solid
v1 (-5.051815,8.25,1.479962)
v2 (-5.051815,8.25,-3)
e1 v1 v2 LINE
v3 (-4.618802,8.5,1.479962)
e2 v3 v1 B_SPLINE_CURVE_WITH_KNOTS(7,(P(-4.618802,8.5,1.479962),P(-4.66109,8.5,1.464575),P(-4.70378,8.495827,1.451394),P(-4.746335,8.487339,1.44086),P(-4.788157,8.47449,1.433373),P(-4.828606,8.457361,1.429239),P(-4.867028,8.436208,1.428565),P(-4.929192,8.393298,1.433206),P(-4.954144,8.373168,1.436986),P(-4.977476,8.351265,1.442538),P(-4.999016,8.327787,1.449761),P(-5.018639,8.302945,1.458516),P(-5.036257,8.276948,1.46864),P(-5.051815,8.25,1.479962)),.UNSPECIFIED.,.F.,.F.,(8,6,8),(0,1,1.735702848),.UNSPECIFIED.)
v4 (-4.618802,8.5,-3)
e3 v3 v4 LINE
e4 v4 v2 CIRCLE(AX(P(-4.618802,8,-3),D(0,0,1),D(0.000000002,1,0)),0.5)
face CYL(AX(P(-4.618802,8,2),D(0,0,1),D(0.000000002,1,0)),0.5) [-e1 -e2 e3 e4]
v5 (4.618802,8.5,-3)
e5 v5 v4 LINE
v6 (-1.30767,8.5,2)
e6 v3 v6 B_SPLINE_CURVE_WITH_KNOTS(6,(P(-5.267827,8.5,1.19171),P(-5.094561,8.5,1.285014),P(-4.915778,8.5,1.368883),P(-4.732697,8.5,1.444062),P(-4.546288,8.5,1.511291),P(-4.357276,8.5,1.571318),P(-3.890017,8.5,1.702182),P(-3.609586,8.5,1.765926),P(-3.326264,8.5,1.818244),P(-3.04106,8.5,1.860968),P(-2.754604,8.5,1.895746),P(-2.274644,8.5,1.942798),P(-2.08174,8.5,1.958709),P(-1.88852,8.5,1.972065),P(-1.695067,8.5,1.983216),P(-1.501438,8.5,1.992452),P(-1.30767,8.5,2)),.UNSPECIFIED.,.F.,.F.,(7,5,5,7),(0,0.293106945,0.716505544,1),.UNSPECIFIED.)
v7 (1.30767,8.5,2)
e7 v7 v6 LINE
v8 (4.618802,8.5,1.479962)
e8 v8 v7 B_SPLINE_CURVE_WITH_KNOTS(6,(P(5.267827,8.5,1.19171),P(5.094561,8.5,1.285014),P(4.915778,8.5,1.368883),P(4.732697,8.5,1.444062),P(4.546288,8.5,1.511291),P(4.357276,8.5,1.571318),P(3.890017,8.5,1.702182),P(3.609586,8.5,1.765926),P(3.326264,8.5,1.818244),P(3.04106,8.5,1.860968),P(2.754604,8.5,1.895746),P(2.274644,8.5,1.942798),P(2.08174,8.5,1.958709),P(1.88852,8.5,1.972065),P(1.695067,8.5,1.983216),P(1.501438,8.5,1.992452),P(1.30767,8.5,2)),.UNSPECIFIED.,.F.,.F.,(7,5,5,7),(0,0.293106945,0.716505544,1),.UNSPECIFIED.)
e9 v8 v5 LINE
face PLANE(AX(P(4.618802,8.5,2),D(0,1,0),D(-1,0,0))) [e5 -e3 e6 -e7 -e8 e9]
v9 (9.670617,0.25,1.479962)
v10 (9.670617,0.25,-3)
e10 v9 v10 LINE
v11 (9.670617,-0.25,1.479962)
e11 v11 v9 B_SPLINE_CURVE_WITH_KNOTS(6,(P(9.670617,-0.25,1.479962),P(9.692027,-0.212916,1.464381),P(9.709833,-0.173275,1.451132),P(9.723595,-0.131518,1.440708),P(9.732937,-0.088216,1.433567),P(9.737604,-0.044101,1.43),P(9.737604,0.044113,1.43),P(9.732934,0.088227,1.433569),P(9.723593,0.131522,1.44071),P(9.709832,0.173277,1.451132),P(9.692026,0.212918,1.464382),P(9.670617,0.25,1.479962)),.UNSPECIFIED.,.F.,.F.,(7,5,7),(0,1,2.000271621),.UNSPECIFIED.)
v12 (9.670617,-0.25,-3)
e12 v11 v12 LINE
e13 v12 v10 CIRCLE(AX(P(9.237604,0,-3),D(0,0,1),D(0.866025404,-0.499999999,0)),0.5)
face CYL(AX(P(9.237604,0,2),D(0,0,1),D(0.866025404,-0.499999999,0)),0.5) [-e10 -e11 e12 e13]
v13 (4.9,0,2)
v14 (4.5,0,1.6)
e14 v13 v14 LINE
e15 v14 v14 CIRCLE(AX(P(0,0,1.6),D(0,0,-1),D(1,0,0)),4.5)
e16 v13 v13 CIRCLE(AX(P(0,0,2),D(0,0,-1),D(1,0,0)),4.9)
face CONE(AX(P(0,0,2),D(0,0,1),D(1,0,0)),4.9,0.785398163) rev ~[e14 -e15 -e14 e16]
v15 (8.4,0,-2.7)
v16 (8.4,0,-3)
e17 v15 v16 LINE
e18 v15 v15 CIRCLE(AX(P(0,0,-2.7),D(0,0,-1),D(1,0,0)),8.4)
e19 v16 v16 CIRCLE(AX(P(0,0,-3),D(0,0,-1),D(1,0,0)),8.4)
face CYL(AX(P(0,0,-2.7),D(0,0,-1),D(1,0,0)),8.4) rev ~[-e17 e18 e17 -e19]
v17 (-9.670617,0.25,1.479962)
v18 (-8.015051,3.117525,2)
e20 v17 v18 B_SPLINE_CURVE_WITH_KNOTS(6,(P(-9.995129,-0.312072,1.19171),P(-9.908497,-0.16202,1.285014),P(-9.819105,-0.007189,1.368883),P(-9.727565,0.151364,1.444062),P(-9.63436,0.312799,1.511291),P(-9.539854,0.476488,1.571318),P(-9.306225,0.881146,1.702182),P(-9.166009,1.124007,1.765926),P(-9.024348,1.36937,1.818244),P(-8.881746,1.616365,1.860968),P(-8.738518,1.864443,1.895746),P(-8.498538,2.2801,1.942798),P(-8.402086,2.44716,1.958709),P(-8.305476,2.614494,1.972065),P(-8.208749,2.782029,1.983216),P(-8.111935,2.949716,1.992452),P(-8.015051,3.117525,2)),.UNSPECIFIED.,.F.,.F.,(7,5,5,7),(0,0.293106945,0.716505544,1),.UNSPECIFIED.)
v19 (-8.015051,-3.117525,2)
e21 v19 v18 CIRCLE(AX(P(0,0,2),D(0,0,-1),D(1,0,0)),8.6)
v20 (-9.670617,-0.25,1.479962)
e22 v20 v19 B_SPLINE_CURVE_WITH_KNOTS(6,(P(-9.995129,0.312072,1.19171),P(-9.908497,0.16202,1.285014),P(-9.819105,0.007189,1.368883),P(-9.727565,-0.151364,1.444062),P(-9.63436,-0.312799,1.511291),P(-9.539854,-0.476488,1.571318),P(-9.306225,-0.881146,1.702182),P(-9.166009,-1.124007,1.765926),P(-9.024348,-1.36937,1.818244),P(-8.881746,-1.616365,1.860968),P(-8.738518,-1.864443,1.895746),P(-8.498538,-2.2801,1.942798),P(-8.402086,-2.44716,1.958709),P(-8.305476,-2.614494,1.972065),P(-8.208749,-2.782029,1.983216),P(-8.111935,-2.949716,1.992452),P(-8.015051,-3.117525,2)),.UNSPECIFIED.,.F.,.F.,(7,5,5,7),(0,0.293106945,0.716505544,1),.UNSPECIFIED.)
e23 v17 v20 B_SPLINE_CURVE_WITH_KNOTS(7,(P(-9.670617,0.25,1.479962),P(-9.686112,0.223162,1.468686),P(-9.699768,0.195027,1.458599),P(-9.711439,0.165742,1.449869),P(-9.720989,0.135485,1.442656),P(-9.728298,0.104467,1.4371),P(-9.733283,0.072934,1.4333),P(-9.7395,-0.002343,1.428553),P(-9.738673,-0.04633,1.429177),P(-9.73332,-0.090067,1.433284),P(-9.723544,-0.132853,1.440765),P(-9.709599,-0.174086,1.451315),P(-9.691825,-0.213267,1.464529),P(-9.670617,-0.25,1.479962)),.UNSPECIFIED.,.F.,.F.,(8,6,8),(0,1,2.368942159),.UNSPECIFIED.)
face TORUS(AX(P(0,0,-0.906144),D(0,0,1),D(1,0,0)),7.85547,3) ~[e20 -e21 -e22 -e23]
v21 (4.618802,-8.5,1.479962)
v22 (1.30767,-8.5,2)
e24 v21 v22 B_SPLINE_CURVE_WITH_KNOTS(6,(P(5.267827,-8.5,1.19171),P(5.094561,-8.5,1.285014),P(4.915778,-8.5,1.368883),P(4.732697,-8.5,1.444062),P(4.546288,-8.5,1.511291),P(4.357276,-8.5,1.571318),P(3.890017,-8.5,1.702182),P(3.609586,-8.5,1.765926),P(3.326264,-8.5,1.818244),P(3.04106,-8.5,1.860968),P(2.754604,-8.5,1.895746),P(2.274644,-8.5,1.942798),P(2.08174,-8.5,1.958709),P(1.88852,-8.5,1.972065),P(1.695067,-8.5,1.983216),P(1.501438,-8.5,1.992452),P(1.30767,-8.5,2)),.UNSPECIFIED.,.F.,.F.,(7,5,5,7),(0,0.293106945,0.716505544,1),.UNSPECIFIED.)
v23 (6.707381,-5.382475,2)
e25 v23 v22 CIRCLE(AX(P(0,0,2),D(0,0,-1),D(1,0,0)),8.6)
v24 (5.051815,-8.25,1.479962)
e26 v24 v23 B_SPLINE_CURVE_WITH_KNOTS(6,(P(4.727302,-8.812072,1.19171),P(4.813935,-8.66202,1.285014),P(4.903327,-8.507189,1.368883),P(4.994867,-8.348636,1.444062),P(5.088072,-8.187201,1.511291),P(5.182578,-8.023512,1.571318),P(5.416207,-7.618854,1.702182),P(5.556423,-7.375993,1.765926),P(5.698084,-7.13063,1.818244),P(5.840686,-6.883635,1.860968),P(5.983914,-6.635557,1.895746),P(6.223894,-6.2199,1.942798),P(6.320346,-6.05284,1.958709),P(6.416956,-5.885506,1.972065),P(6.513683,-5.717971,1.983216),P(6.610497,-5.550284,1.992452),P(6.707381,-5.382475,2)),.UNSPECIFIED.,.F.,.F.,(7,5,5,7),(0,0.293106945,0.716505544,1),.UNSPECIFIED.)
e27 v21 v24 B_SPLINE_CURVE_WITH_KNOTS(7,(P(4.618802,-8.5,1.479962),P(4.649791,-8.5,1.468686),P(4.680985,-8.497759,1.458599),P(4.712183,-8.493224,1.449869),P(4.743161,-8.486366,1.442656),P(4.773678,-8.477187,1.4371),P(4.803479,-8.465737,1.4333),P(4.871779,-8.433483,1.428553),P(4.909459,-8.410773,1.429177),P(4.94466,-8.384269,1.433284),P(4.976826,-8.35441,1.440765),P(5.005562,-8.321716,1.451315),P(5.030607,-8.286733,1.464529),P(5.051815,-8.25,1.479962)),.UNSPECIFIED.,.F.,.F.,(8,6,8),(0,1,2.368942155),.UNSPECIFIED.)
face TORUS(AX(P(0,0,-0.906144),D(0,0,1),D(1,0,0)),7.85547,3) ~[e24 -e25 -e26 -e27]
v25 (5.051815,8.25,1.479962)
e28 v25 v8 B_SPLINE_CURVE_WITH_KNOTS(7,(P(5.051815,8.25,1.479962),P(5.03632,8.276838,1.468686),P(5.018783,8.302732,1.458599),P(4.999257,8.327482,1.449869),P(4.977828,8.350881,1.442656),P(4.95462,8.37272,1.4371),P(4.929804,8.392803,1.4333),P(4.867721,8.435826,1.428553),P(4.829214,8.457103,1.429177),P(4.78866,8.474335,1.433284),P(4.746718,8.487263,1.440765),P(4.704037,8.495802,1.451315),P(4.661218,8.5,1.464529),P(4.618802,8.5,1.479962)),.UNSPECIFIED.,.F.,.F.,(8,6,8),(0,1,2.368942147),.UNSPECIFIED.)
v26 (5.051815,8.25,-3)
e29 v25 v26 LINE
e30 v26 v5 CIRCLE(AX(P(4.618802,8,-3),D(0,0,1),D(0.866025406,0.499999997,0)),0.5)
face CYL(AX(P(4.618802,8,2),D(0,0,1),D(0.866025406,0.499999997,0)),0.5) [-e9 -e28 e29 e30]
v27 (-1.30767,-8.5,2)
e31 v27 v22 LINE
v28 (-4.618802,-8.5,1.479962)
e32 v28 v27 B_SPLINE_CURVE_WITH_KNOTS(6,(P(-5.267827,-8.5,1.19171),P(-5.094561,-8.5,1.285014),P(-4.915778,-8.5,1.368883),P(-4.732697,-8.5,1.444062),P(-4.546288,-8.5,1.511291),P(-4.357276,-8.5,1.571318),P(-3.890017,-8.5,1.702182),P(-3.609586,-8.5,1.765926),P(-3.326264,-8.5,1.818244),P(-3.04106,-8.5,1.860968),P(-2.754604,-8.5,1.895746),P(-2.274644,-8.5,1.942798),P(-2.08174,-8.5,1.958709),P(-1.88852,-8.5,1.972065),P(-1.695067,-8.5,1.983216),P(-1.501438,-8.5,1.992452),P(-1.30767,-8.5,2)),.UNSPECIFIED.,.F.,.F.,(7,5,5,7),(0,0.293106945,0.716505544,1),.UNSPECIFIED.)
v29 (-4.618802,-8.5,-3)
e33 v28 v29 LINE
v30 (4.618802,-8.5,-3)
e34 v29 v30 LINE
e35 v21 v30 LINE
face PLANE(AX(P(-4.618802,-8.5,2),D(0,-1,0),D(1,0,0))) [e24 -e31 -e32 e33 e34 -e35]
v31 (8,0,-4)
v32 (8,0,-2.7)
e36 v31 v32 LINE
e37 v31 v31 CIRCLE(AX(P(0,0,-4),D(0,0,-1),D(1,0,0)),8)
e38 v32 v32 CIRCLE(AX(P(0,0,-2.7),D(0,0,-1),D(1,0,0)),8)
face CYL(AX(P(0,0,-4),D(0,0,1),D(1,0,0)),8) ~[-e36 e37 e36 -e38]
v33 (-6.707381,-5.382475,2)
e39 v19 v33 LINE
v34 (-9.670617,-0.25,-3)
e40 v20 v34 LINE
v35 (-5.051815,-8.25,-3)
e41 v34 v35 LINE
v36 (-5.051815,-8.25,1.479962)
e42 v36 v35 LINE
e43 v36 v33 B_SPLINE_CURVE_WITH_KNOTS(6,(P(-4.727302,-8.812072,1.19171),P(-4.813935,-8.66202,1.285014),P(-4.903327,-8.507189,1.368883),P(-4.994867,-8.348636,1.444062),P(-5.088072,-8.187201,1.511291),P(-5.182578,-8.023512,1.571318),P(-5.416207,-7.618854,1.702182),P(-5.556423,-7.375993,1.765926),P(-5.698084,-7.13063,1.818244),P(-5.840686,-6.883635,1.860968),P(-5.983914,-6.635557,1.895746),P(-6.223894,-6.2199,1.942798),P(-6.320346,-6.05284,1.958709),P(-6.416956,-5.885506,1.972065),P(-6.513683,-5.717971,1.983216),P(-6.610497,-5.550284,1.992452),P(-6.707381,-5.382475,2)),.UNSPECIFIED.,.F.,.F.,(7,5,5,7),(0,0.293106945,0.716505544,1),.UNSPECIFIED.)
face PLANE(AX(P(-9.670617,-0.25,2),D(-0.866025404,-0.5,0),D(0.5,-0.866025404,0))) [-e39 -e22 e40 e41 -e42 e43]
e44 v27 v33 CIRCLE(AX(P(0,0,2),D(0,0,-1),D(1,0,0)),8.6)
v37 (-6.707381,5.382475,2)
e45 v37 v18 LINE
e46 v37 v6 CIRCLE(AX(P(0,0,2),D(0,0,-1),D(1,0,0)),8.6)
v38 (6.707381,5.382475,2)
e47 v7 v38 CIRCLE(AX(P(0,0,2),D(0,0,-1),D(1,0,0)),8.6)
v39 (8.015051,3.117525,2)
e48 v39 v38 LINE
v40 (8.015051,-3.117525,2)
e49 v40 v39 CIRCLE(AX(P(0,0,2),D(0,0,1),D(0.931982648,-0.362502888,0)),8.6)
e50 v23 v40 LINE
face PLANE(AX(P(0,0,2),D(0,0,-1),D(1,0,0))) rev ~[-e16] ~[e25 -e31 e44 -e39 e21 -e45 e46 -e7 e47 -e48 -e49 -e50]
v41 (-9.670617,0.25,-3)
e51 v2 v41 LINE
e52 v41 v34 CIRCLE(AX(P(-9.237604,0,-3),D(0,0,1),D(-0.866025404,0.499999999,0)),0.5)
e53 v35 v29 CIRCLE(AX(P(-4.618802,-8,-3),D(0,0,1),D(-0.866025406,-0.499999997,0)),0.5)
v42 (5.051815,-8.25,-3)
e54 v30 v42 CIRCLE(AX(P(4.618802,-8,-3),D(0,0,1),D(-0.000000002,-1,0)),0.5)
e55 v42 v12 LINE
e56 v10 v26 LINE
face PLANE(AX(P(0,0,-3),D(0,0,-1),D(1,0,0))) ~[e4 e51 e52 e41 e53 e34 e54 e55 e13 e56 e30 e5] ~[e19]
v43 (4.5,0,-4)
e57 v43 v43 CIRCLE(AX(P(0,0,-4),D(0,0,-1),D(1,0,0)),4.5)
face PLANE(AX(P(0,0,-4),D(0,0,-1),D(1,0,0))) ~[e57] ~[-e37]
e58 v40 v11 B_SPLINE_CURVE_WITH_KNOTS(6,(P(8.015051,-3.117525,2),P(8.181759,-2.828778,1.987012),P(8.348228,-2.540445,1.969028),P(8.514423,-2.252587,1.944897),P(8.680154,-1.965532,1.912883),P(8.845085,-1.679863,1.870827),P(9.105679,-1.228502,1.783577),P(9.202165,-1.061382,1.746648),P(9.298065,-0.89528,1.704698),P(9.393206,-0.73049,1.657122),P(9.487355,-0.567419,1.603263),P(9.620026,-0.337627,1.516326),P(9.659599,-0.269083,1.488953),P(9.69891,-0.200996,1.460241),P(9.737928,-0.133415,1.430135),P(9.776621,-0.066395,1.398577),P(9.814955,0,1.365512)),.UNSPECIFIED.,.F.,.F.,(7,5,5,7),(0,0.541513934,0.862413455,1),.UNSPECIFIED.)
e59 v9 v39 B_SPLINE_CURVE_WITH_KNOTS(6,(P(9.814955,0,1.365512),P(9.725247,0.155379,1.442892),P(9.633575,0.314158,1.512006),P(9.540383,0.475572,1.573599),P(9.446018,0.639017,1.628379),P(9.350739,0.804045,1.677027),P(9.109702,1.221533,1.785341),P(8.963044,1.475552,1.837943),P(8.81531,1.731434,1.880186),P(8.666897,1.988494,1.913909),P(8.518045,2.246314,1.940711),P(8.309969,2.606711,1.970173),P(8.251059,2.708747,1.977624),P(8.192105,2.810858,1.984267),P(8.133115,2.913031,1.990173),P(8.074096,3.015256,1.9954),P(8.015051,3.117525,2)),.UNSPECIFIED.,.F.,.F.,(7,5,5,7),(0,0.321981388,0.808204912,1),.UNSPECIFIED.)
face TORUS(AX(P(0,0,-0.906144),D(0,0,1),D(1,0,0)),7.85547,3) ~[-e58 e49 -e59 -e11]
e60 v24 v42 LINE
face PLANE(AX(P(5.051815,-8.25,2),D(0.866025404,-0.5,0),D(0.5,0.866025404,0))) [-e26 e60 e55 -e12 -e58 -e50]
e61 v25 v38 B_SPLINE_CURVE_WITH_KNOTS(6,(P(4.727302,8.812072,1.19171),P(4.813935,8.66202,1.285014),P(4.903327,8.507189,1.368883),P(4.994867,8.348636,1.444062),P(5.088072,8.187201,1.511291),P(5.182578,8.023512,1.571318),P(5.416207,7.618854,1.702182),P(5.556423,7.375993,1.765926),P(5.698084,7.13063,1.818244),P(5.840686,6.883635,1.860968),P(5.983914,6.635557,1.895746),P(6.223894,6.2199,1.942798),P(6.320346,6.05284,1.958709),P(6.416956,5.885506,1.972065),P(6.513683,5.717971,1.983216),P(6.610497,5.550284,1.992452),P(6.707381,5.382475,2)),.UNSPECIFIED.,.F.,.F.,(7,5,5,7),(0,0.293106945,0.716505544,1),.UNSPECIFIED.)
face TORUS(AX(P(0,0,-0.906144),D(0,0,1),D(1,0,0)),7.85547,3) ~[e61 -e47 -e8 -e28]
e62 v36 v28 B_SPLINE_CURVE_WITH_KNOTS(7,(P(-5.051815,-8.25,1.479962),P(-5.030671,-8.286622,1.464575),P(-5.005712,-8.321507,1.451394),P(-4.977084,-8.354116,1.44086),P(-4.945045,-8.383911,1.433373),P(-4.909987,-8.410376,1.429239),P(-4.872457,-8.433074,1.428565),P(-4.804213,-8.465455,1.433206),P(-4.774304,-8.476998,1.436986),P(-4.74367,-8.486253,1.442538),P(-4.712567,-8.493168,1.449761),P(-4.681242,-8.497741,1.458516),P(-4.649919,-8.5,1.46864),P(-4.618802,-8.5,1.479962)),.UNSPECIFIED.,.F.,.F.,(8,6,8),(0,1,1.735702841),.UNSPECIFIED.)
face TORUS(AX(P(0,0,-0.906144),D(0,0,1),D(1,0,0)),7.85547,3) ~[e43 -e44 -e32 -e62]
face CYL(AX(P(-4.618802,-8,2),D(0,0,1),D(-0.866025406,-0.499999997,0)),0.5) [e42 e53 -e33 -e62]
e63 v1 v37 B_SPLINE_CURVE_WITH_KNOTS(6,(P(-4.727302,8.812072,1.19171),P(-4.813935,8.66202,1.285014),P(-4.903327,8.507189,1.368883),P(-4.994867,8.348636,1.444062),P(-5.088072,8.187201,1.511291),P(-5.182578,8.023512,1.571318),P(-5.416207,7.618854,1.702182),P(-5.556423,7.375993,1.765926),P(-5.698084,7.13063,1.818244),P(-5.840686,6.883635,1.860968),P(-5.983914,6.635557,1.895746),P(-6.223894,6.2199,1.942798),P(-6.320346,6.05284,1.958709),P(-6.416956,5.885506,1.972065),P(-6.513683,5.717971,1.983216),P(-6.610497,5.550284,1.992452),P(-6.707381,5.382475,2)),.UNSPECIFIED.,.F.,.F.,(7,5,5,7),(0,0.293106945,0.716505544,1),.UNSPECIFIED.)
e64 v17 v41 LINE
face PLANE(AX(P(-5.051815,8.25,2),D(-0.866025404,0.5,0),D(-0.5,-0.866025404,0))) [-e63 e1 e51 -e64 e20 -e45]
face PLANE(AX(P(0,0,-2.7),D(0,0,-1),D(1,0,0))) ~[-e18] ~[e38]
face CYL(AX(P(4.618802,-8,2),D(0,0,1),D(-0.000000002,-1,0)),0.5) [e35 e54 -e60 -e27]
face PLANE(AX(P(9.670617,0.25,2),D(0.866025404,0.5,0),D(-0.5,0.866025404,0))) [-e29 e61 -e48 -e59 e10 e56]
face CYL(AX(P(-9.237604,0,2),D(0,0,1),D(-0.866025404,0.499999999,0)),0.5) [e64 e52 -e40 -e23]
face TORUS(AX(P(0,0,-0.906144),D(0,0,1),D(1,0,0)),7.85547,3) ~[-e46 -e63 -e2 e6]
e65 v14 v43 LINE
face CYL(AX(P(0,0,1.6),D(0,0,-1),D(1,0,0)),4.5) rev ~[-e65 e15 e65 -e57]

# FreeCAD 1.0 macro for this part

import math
import FreeCAD as App
import Part
import Sketcher

V = App.Vector
Q = App.Units.Quantity

doc = App.newDocument("Part")
body = doc.addObject("PartDesign::Body", "Body")

# Sketch on YZ plane
sketch1 = body.newObject("Sketcher::SketchObject", "Sketch")
sketch1.AttachmentSupport = (doc.getObject("YZ_Plane"), [""])
sketch1.MapMode = "FlatFace"
sketch1.addGeometry(Part.LineSegment(V(4.5, 1.6, 0), V(4.5, -4, 0)), False)
sketch1.addGeometry(Part.LineSegment(V(4.5, -4, 0), V(8, -4, 0)), False)
sketch1.addGeometry(Part.LineSegment(V(8, -4, 0), V(8, -2.7, 0)), False)
sketch1.addGeometry(Part.LineSegment(V(8, -2.7, 0), V(8.4, -2.7, 0)), False)
sketch1.addGeometry(Part.LineSegment(V(8.4, -2.7, 0), V(8.4, -3, 0)), False)
sketch1.addGeometry(Part.LineSegment(V(8.4, -3, 0), V(9.774245, -3, 0)), False)
sketch1.addGeometry(Part.ArcOfCircle(Part.Circle(V(7.85547, -0.693855, 0), V(0, 0, 1), 3), math.radians(-50.238618), math.radians(-44.369641)), False)
sketch1.addGeometry(Part.LineSegment(V(10, -2.79171, 0), V(10, 1.19171, 0)), False)
sketch1.addGeometry(Part.ArcOfCircle(Part.Circle(V(7.85547, -0.906144, 0), V(0, 0, 1), 3), math.radians(44.369641), math.radians(75.630359)), False)
sketch1.addGeometry(Part.LineSegment(V(8.6, 2, 0), V(4.9, 2, 0)), False)
sketch1.addGeometry(Part.LineSegment(V(4.9, 2, 0), V(4.5, 1.6, 0)), False)
sketch1.addConstraint(Sketcher.Constraint("Coincident", 0, 2, 1, 1))
sketch1.addConstraint(Sketcher.Constraint("Coincident", 1, 2, 2, 1))
sketch1.addConstraint(Sketcher.Constraint("Coincident", 2, 2, 3, 1))
sketch1.addConstraint(Sketcher.Constraint("Coincident", 3, 2, 4, 1))
sketch1.addConstraint(Sketcher.Constraint("Coincident", 4, 2, 5, 1))
sketch1.addConstraint(Sketcher.Constraint("Coincident", 5, 2, 6, 1))
sketch1.addConstraint(Sketcher.Constraint("Coincident", 6, 2, 7, 1))
sketch1.addConstraint(Sketcher.Constraint("Coincident", 7, 2, 8, 1))
sketch1.addConstraint(Sketcher.Constraint("Coincident", 8, 2, 9, 1))
sketch1.addConstraint(Sketcher.Constraint("Coincident", 9, 2, 10, 1))
sketch1.addConstraint(Sketcher.Constraint("Coincident", 10, 2, 0, 1))
sketch1.addConstraint(Sketcher.Constraint("Vertical", 0))
sketch1.addConstraint(Sketcher.Constraint("Horizontal", 1))
sketch1.addConstraint(Sketcher.Constraint("Vertical", 2))
sketch1.addConstraint(Sketcher.Constraint("Horizontal", 3))
sketch1.addConstraint(Sketcher.Constraint("Vertical", 4))
sketch1.addConstraint(Sketcher.Constraint("Horizontal", 5))
sketch1.addConstraint(Sketcher.Constraint("Vertical", 7))
sketch1.addConstraint(Sketcher.Constraint("Horizontal", 9))
sketch1.addConstraint(Sketcher.Constraint("Equal", 6, 8))
sketch1.addConstraint(Sketcher.Constraint("Vertical", 6, 3, 8, 3))
sketch1.addConstraint(Sketcher.Constraint("Radius", 6, 3.0))
sketch1.addConstraint(Sketcher.Constraint("Angle", 10, Q("-135 deg")))
sketch1.addConstraint(Sketcher.Constraint("DistanceX", 1, 1, 1, 2, 3.5))
sketch1.addConstraint(Sketcher.Constraint("DistanceX", 3, 1, 3, 2, 0.4))
sketch1.addConstraint(Sketcher.Constraint("DistanceX", 9, 2, 9, 1, 3.7))
sketch1.addConstraint(Sketcher.Constraint("DistanceY", 0, 2, 0, 1, 5.6))
sketch1.addConstraint(Sketcher.Constraint("DistanceY", 2, 1, 2, 2, 1.3))
sketch1.addConstraint(Sketcher.Constraint("DistanceY", 4, 2, 4, 1, 0.3))
sketch1.addConstraint(Sketcher.Constraint("DistanceY", 0, 2, -1, 1, 4.0))
sketch1.addConstraint(Sketcher.Constraint("DistanceX", -1, 1, 1, 2, 8.0))
sketch1.addConstraint(Sketcher.Constraint("DistanceX", -1, 1, 6, 2, 10.0))
sketch1.addConstraint(Sketcher.Constraint("DistanceY", -1, 1, 8, 2, 2.0))
sketch1.addConstraint(Sketcher.Constraint("DistanceY", 7, 1, 7, 2, 3.983419))
sketch1.addConstraint(Sketcher.Constraint("DistanceX", 5, 1, 5, 2, 1.374245))
revolution = body.newObject("PartDesign::Revolution", "Revolution")
revolution.Profile = sketch1
revolution.ReferenceAxis = (sketch1, ["V_Axis"])
revolution.Angle = 360

# Sketch on XY plane
sketch2 = body.newObject("Sketcher::SketchObject", "Sketch001")
sketch2.AttachmentSupport = (doc.getObject("XY_Plane"), [""])
sketch2.MapMode = "FlatFace"
sketch2.AttachmentOffset = App.Placement(V(0, 0, 2), App.Rotation())
sketch2.addGeometry(Part.Circle(V(0, 0, 0), V(0, 0, 1), 11.857853), False)
sketch2.addGeometry(Part.LineSegment(V(-9.670617, 0.25, 0), V(-5.051815, 8.25, 0)), False)
sketch2.addGeometry(Part.ArcOfCircle(Part.Circle(V(-4.618802, 8, 0), V(0, 0, 1), 0.5), math.radians(90), math.radians(150)), False)
sketch2.addGeometry(Part.LineSegment(V(-4.618802, 8.5, 0), V(4.618802, 8.5, 0)), False)
sketch2.addGeometry(Part.ArcOfCircle(Part.Circle(V(4.618802, 8, 0), V(0, 0, 1), 0.5), math.radians(30), math.radians(90)), False)
sketch2.addGeometry(Part.LineSegment(V(5.051815, 8.25, 0), V(9.670617, 0.25, 0)), False)
sketch2.addGeometry(Part.ArcOfCircle(Part.Circle(V(9.237604, 0, 0), V(0, 0, 1), 0.5), math.radians(-30), math.radians(30)), False)
sketch2.addGeometry(Part.LineSegment(V(9.670617, -0.25, 0), V(5.051815, -8.25, 0)), False)
sketch2.addGeometry(Part.ArcOfCircle(Part.Circle(V(4.618802, -8, 0), V(0, 0, 1), 0.5), math.radians(-90), math.radians(-30)), False)
sketch2.addGeometry(Part.LineSegment(V(4.618802, -8.5, 0), V(-4.618802, -8.5, 0)), False)
sketch2.addGeometry(Part.ArcOfCircle(Part.Circle(V(-4.618802, -8, 0), V(0, 0, 1), 0.5), math.radians(-150), math.radians(-90)), False)
sketch2.addGeometry(Part.LineSegment(V(-5.051815, -8.25, 0), V(-9.670617, -0.25, 0)), False)
sketch2.addGeometry(Part.ArcOfCircle(Part.Circle(V(-9.237604, 0, 0), V(0, 0, 1), 0.5), math.radians(150), math.radians(210)), False)
sketch2.addConstraint(Sketcher.Constraint("Tangent", 1, 2, 2, 2))
sketch2.addConstraint(Sketcher.Constraint("Tangent", 2, 1, 3, 1))
sketch2.addConstraint(Sketcher.Constraint("Tangent", 3, 2, 4, 2))
sketch2.addConstraint(Sketcher.Constraint("Tangent", 4, 1, 5, 1))
sketch2.addConstraint(Sketcher.Constraint("Tangent", 5, 2, 6, 2))
sketch2.addConstraint(Sketcher.Constraint("Tangent", 6, 1, 7, 1))
sketch2.addConstraint(Sketcher.Constraint("Tangent", 7, 2, 8, 2))
sketch2.addConstraint(Sketcher.Constraint("Tangent", 8, 1, 9, 1))
sketch2.addConstraint(Sketcher.Constraint("Tangent", 9, 2, 10, 2))
sketch2.addConstraint(Sketcher.Constraint("Tangent", 10, 1, 11, 1))
sketch2.addConstraint(Sketcher.Constraint("Tangent", 11, 2, 12, 2))
sketch2.addConstraint(Sketcher.Constraint("Tangent", 12, 1, 1, 1))
sketch2.addConstraint(Sketcher.Constraint("Horizontal", 3))
sketch2.addConstraint(Sketcher.Constraint("Horizontal", 9))
sketch2.addConstraint(Sketcher.Constraint("Coincident", 0, 3, -1, 1))
sketch2.addConstraint(Sketcher.Constraint("Equal", 2, 4))
sketch2.addConstraint(Sketcher.Constraint("Equal", 4, 6))
sketch2.addConstraint(Sketcher.Constraint("Equal", 6, 8))
sketch2.addConstraint(Sketcher.Constraint("Equal", 8, 10))
sketch2.addConstraint(Sketcher.Constraint("Equal", 10, 12))
sketch2.addConstraint(Sketcher.Constraint("Symmetric", 2, 3, 8, 3, -1, 1))
sketch2.addConstraint(Sketcher.Constraint("Symmetric", 6, 3, 12, 3, -1, 1))
sketch2.addConstraint(Sketcher.Constraint("Symmetric", 1, 2, 4, 1, -2))
sketch2.addConstraint(Sketcher.Constraint("Parallel", 5, 11))
sketch2.addConstraint(Sketcher.Constraint("Radius", 2, 0.5))
sketch2.addConstraint(Sketcher.Constraint("Angle", 1, Q("60 deg")))
sketch2.addConstraint(Sketcher.Constraint("DistanceY", -1, 1, 2, 3, 8.0))
sketch2.addConstraint(Sketcher.Constraint("Diameter", 0, 23.715707))
sketch2.addConstraint(Sketcher.Constraint("DistanceX", 3, 1, 3, 2, 9.237604))
pocket1 = body.newObject("PartDesign::Pocket", "Pocket")
pocket1.Profile = sketch2
pocket1.Length = 10

doc.recompute()
